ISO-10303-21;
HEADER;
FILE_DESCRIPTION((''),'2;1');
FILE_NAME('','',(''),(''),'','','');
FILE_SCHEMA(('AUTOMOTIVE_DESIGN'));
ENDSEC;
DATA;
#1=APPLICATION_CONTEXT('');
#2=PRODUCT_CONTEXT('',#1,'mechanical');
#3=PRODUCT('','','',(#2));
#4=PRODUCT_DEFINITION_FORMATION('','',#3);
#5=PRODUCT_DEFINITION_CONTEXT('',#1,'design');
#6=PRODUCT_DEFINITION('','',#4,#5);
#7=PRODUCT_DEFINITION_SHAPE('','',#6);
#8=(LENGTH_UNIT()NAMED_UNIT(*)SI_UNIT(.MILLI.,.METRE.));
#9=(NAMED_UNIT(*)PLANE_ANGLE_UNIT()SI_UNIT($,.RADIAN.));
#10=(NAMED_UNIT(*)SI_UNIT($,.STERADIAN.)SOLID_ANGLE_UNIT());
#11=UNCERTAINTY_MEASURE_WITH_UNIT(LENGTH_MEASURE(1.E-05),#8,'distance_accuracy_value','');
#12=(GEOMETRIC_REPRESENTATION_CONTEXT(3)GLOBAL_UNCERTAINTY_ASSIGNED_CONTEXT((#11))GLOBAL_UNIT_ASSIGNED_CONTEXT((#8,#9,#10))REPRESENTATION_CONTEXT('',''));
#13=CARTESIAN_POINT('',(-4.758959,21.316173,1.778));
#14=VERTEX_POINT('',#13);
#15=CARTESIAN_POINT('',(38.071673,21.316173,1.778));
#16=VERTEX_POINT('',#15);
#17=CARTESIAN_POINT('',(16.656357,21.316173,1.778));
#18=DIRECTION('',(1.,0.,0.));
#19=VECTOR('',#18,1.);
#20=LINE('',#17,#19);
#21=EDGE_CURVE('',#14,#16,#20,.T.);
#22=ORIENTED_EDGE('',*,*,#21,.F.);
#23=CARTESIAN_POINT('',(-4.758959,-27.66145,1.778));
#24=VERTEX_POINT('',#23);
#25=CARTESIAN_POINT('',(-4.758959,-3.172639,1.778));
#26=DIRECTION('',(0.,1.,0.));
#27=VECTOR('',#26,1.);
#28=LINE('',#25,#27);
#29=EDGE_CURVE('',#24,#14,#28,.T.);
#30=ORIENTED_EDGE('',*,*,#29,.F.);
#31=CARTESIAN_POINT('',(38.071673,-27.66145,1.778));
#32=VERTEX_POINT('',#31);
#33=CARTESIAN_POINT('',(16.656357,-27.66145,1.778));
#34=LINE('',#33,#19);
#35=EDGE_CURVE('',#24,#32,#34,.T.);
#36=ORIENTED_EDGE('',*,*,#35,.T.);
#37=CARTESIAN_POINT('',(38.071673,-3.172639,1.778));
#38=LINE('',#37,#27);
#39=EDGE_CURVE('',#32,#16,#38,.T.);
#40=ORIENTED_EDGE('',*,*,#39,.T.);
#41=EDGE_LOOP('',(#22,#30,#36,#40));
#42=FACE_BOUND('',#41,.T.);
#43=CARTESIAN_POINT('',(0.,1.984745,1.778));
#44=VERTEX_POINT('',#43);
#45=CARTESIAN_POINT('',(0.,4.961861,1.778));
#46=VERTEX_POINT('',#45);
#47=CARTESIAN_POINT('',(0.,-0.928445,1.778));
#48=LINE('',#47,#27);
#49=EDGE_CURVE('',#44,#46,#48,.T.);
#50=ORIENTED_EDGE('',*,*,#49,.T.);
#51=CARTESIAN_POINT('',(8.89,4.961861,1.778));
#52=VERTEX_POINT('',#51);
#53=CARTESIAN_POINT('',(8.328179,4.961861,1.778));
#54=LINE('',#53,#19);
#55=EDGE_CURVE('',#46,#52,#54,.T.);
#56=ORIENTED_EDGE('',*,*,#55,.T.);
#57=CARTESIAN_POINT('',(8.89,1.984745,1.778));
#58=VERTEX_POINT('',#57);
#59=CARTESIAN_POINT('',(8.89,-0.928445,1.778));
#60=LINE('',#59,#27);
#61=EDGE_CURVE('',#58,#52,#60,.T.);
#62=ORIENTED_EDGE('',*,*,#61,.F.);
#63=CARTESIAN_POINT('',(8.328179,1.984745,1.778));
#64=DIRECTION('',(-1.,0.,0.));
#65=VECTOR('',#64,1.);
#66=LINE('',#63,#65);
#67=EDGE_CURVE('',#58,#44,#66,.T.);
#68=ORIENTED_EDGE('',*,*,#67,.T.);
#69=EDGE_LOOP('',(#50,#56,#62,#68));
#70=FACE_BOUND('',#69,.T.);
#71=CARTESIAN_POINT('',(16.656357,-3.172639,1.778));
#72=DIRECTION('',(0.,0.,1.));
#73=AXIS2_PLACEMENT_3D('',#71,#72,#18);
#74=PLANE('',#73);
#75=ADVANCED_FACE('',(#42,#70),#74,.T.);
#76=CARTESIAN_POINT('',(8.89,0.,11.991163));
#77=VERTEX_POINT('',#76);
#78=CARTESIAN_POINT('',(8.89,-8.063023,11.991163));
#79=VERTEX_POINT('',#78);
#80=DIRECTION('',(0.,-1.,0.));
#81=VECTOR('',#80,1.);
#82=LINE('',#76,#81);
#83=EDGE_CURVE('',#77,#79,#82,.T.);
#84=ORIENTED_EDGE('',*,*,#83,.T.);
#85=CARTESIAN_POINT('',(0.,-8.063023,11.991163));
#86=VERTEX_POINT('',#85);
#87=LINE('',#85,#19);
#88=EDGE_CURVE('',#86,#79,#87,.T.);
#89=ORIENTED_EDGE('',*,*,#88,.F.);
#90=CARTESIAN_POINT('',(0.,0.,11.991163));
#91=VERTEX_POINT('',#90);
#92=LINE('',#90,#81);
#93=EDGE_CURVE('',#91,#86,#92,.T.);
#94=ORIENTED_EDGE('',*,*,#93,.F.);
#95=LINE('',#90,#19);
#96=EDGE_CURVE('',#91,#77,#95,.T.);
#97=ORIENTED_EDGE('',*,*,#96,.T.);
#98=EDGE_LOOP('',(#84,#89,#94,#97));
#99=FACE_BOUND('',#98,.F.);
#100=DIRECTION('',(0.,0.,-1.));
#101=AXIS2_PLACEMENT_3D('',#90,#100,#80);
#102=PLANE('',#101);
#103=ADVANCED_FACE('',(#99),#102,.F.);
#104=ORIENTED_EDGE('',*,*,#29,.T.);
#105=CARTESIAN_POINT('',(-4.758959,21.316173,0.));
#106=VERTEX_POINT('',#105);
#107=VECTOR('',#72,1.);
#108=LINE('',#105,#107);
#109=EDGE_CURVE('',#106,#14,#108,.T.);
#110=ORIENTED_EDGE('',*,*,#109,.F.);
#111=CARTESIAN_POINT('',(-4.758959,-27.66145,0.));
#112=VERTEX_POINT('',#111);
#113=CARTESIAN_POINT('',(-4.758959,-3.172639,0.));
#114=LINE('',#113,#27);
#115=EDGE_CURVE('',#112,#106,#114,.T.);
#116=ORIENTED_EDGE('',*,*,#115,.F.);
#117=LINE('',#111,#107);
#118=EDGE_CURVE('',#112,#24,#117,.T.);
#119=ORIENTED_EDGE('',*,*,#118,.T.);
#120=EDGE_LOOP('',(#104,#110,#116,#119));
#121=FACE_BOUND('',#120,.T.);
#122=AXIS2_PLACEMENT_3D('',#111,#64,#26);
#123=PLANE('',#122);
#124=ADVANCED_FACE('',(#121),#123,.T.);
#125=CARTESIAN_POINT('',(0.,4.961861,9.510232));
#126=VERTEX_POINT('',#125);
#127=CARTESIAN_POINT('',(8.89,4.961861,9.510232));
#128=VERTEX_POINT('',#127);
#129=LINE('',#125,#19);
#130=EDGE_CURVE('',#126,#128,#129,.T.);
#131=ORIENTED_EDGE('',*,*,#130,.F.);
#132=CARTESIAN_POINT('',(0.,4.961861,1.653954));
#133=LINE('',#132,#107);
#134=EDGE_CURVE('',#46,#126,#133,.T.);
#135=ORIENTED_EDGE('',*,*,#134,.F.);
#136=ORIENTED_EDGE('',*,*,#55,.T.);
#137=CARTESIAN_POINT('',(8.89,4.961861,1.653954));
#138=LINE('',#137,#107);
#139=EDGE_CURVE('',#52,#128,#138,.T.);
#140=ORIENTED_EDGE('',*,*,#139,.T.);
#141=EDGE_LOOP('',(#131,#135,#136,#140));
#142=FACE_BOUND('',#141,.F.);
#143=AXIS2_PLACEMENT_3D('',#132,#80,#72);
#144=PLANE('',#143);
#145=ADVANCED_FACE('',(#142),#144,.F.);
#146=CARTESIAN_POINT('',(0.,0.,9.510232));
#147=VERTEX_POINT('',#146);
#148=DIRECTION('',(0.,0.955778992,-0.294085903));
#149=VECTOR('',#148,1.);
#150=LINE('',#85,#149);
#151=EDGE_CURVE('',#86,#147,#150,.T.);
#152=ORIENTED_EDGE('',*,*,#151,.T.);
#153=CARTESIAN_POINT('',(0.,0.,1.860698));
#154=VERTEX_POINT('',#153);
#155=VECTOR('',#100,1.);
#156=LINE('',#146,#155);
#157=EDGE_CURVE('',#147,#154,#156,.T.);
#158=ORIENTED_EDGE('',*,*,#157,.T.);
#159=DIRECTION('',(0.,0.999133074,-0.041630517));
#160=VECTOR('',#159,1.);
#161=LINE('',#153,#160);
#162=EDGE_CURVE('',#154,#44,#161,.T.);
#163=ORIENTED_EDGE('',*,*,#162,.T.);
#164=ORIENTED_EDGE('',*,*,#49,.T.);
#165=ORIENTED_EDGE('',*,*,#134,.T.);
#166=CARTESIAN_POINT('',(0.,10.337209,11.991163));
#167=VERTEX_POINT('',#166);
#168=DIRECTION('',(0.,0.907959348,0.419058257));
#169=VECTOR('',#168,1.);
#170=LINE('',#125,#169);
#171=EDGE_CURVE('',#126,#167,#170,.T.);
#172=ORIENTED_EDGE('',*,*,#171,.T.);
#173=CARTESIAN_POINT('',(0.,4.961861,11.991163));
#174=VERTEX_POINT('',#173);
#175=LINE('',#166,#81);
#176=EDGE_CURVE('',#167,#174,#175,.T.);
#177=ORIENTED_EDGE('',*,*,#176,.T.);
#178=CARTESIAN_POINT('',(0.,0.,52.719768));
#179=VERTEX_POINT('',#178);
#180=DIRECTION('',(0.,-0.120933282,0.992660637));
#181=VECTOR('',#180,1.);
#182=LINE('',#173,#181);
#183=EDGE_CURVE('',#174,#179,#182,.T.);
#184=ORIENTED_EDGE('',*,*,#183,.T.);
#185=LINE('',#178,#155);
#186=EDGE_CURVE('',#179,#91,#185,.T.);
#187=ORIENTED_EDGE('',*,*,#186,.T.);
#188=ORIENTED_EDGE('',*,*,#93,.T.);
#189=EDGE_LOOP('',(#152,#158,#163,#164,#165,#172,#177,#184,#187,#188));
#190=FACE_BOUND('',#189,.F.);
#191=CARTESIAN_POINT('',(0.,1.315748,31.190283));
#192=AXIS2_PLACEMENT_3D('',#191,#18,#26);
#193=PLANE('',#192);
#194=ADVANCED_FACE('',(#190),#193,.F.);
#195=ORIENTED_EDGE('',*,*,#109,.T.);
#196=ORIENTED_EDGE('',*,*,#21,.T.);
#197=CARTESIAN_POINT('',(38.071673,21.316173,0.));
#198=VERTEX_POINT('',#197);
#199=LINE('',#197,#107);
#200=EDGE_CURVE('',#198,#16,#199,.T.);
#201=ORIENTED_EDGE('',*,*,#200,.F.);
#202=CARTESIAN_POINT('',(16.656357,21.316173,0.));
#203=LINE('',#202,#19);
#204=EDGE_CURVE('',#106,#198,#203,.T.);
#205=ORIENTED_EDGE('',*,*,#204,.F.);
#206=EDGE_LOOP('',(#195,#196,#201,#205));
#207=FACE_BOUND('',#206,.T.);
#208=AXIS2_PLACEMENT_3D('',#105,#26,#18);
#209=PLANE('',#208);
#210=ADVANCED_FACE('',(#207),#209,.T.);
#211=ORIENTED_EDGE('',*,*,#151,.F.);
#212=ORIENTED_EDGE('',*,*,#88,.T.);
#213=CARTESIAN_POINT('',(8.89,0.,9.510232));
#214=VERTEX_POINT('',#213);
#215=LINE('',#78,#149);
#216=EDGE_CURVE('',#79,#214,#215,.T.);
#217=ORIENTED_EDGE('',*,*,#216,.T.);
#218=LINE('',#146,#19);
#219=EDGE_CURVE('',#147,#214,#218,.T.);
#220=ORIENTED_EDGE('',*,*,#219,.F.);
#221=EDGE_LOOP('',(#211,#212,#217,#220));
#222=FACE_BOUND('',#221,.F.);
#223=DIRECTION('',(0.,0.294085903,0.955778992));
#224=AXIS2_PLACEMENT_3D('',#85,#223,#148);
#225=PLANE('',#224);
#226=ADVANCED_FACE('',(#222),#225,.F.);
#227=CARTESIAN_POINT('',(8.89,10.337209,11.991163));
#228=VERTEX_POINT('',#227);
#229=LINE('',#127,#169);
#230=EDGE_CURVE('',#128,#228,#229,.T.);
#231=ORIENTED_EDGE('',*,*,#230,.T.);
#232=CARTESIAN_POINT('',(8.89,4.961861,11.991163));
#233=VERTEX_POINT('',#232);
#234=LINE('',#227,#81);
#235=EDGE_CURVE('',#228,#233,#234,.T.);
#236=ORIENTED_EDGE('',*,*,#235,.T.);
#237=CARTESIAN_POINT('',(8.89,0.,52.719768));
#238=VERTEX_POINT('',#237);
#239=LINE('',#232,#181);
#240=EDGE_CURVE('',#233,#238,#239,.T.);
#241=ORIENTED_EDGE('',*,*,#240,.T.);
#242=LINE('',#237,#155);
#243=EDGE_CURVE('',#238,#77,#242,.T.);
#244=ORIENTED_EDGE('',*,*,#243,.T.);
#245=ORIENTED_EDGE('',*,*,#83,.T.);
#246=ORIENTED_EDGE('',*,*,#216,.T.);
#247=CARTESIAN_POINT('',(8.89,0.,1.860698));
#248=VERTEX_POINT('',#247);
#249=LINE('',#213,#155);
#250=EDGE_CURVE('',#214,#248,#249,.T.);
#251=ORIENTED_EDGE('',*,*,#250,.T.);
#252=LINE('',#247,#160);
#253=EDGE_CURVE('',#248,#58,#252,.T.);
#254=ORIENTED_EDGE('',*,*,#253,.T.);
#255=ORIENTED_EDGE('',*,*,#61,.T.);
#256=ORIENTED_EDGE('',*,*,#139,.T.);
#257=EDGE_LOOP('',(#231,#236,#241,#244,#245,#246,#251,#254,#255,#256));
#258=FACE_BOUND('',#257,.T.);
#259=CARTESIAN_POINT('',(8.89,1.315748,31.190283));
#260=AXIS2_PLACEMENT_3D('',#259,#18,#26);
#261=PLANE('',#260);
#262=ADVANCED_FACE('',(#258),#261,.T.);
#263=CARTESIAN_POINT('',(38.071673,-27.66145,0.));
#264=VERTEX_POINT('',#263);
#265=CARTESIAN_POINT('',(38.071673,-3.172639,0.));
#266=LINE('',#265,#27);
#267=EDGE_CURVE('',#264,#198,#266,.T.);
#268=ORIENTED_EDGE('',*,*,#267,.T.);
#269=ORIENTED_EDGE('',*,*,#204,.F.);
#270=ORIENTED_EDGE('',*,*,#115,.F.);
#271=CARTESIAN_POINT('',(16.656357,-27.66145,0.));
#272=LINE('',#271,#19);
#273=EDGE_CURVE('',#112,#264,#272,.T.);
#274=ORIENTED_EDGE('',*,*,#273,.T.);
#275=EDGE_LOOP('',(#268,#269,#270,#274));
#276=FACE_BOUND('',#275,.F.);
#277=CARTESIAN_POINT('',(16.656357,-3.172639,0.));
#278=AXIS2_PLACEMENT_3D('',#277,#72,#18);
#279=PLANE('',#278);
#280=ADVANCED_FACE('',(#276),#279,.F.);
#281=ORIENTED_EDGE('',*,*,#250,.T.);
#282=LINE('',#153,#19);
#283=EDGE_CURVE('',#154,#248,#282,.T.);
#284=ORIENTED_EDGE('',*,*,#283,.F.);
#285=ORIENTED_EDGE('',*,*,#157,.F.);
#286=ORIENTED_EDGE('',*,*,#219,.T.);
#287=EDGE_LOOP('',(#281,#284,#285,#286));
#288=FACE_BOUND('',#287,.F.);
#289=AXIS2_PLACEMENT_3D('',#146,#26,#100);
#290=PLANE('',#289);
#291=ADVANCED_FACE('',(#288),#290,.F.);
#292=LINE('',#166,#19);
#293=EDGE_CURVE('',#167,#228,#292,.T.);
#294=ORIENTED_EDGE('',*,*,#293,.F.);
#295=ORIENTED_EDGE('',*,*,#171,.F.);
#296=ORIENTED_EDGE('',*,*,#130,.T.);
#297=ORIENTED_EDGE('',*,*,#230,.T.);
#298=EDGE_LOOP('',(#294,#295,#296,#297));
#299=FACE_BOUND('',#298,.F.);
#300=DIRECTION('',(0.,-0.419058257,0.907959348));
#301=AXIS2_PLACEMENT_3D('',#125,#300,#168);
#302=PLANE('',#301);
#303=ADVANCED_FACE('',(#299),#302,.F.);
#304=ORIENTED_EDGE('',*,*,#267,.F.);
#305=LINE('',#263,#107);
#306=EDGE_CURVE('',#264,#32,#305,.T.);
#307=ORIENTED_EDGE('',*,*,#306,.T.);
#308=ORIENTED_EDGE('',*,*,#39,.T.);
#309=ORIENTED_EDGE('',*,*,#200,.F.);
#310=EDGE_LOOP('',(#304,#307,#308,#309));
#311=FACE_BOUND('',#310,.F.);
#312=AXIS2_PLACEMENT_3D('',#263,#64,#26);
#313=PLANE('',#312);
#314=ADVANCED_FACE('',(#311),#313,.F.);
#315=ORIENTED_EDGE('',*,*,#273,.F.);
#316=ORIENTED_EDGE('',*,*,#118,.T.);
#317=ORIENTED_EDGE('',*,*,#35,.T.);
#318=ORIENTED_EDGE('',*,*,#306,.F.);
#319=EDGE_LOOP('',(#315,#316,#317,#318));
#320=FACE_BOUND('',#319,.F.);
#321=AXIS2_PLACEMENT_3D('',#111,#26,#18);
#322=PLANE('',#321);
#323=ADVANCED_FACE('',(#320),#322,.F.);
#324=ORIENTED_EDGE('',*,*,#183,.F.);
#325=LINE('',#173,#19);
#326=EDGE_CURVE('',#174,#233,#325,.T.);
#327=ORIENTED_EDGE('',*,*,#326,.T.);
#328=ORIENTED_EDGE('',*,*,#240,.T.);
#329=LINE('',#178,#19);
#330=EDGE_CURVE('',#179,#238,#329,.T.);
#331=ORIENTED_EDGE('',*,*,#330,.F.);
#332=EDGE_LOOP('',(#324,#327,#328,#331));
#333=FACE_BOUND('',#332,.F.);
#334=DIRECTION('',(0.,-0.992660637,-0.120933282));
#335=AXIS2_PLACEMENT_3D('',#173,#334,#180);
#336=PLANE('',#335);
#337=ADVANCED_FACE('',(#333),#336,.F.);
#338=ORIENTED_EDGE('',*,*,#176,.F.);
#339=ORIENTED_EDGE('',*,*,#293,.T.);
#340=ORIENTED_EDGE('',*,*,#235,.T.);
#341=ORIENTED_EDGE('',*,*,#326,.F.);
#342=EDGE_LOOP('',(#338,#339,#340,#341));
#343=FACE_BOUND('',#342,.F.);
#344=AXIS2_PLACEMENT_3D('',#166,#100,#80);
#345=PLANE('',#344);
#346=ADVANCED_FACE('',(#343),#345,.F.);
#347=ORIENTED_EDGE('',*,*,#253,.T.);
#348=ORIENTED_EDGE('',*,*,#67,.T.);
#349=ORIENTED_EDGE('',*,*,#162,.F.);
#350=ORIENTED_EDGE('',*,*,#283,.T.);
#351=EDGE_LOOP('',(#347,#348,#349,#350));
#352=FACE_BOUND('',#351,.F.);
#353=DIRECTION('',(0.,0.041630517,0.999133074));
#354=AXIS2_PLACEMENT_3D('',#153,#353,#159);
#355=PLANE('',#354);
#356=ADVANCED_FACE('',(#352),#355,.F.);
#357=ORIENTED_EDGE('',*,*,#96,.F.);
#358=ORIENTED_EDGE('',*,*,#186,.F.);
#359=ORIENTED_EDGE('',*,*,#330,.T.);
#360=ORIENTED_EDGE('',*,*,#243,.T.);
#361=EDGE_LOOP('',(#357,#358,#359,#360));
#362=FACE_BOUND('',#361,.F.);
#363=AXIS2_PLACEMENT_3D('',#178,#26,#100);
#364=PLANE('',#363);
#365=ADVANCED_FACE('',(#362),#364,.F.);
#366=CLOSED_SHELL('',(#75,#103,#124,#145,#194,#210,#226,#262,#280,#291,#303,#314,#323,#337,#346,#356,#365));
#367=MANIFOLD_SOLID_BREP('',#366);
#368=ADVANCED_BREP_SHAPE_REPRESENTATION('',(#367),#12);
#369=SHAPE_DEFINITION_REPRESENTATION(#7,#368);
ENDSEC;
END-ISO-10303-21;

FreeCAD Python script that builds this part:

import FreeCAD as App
import Part
import Sketcher
Q = App.Units.Quantity

doc = App.newDocument("Part")
body = doc.addObject("PartDesign::Body", "Body")

# Sketch on XY plane
sketch1 = doc.addObject("Sketcher::SketchObject", "Sketch")
body.addObject(sketch1)
sketch1.AttachmentSupport = (doc.XY_Plane, [""])
sketch1.MapMode = "FlatFace"
sketch1.addGeometry([
    Part.LineSegment(App.Vector(-4.758959, 21.316173, 0), App.Vector(-4.758959, -27.66145, 0)),
    Part.LineSegment(App.Vector(-4.758959, -27.66145, 0), App.Vector(38.071673, -27.66145, 0)),
    Part.LineSegment(App.Vector(38.071673, -27.66145, 0), App.Vector(38.071673, 21.316173, 0)),
    Part.LineSegment(App.Vector(38.071673, 21.316173, 0), App.Vector(-4.758959, 21.316173, 0)),
], False)
sketch1.addConstraint([
    Sketcher.Constraint("Coincident", 0, 2, 1, 1),
    Sketcher.Constraint("Coincident", 1, 2, 2, 1),
    Sketcher.Constraint("Coincident", 2, 2, 3, 1),
    Sketcher.Constraint("Coincident", 3, 2, 0, 1),
    Sketcher.Constraint("Vertical", 0),
    Sketcher.Constraint("Horizontal", 1),
    Sketcher.Constraint("Vertical", 2),
    Sketcher.Constraint("Horizontal", 3),
    Sketcher.Constraint("DistanceX", 1, 1, 1, 2, 42.830633),
    Sketcher.Constraint("DistanceY", 0, 2, 0, 1, 48.977623),
    Sketcher.Constraint("DistanceX", 0, 2, -1, 1, 4.758959),
    Sketcher.Constraint("DistanceY", 0, 2, -1, 1, 27.66145),
])
pad1 = doc.addObject("PartDesign::Pad", "Pad")
body.addObject(pad1)
pad1.Profile = sketch1
pad1.Length = Q("0.07 in")

# Sketch on YZ plane
sketch2 = doc.addObject("Sketcher::SketchObject", "Sketch001")
body.addObject(sketch2)
sketch2.AttachmentSupport = (doc.YZ_Plane, [""])
sketch2.MapMode = "FlatFace"
sketch2.addGeometry([
    Part.LineSegment(App.Vector(4.961861, 11.991163, 0), App.Vector(0, 52.719768, 0)),  # 0
    Part.LineSegment(App.Vector(0, 52.719768, 0), App.Vector(0, 11.991163, 0)),  # 1
    Part.LineSegment(App.Vector(0, 11.991163, 0), App.Vector(-8.063023, 11.991163, 0)),  # 2
    Part.LineSegment(App.Vector(-8.063023, 11.991163, 0), App.Vector(0, 9.510232, 0)),  # 3
    Part.LineSegment(App.Vector(0, 9.510232, 0), App.Vector(0, 1.860698, 0)),  # 4
    Part.LineSegment(App.Vector(0, 1.860698, 0), App.Vector(4.961861, 1.653954, 0)),  # 5
    Part.LineSegment(App.Vector(4.961861, 1.653954, 0), App.Vector(4.961861, 9.510232, 0)),  # 6
    Part.LineSegment(App.Vector(4.961861, 9.510232, 0), App.Vector(10.337209, 11.991163, 0)),  # 7
    Part.LineSegment(App.Vector(10.337209, 11.991163, 0), App.Vector(4.961861, 11.991163, 0)),  # 8
], False)
sketch2.addConstraint([
    Sketcher.Constraint("Coincident", 0, 2, 1, 1),
    Sketcher.Constraint("Coincident", 1, 2, 2, 1),
    Sketcher.Constraint("Coincident", 2, 2, 3, 1),
    Sketcher.Constraint("Coincident", 3, 2, 4, 1),
    Sketcher.Constraint("Coincident", 4, 2, 5, 1),
    Sketcher.Constraint("Coincident", 5, 2, 6, 1),
    Sketcher.Constraint("Coincident", 6, 2, 7, 1),
    Sketcher.Constraint("Coincident", 7, 2, 8, 1),
    Sketcher.Constraint("Coincident", 8, 2, 0, 1),
    Sketcher.Constraint("Vertical", 1),
    Sketcher.Constraint("Horizontal", 2),
    Sketcher.Constraint("Vertical", 4),
    Sketcher.Constraint("Vertical", 6),
    Sketcher.Constraint("Horizontal", 8),
    Sketcher.Constraint("PointOnObject", 0, 2, -2),
    Sketcher.Constraint("PointOnObject", 3, 2, -2),
    Sketcher.Constraint("Horizontal", 3, 2, 6, 2),
    Sketcher.Constraint("Horizontal", 2, 2, 7, 2),
    Sketcher.Constraint("Vertical", 6, 2, 8, 2),
    Sketcher.Constraint("DistanceX", 8, 2, 8, 1, 5.375348),
    Sketcher.Constraint("DistanceY", 6, 1, 6, 2, 7.856279),
    Sketcher.Constraint("DistanceX", 2, 2, 2, 1, 8.063023),
    Sketcher.Constraint("DistanceY", 1, 2, 1, 1, 40.728605),
    Sketcher.Constraint("DistanceY", 4, 2, 4, 1, 7.649534),
    Sketcher.Constraint("DistanceY", -1, 1, 0, 2, 52.719768),
    Sketcher.Constraint("DistanceX", -1, 1, 5, 2, 4.961861),
    Sketcher.Constraint("DistanceY", 3, 2, 1, 2, 2.480931),
])
pad2 = doc.addObject("PartDesign::Pad", "Pad001")
body.addObject(pad2)
pad2.Profile = sketch2
pad2.Length = Q("0.35 in")

doc.recompute()
